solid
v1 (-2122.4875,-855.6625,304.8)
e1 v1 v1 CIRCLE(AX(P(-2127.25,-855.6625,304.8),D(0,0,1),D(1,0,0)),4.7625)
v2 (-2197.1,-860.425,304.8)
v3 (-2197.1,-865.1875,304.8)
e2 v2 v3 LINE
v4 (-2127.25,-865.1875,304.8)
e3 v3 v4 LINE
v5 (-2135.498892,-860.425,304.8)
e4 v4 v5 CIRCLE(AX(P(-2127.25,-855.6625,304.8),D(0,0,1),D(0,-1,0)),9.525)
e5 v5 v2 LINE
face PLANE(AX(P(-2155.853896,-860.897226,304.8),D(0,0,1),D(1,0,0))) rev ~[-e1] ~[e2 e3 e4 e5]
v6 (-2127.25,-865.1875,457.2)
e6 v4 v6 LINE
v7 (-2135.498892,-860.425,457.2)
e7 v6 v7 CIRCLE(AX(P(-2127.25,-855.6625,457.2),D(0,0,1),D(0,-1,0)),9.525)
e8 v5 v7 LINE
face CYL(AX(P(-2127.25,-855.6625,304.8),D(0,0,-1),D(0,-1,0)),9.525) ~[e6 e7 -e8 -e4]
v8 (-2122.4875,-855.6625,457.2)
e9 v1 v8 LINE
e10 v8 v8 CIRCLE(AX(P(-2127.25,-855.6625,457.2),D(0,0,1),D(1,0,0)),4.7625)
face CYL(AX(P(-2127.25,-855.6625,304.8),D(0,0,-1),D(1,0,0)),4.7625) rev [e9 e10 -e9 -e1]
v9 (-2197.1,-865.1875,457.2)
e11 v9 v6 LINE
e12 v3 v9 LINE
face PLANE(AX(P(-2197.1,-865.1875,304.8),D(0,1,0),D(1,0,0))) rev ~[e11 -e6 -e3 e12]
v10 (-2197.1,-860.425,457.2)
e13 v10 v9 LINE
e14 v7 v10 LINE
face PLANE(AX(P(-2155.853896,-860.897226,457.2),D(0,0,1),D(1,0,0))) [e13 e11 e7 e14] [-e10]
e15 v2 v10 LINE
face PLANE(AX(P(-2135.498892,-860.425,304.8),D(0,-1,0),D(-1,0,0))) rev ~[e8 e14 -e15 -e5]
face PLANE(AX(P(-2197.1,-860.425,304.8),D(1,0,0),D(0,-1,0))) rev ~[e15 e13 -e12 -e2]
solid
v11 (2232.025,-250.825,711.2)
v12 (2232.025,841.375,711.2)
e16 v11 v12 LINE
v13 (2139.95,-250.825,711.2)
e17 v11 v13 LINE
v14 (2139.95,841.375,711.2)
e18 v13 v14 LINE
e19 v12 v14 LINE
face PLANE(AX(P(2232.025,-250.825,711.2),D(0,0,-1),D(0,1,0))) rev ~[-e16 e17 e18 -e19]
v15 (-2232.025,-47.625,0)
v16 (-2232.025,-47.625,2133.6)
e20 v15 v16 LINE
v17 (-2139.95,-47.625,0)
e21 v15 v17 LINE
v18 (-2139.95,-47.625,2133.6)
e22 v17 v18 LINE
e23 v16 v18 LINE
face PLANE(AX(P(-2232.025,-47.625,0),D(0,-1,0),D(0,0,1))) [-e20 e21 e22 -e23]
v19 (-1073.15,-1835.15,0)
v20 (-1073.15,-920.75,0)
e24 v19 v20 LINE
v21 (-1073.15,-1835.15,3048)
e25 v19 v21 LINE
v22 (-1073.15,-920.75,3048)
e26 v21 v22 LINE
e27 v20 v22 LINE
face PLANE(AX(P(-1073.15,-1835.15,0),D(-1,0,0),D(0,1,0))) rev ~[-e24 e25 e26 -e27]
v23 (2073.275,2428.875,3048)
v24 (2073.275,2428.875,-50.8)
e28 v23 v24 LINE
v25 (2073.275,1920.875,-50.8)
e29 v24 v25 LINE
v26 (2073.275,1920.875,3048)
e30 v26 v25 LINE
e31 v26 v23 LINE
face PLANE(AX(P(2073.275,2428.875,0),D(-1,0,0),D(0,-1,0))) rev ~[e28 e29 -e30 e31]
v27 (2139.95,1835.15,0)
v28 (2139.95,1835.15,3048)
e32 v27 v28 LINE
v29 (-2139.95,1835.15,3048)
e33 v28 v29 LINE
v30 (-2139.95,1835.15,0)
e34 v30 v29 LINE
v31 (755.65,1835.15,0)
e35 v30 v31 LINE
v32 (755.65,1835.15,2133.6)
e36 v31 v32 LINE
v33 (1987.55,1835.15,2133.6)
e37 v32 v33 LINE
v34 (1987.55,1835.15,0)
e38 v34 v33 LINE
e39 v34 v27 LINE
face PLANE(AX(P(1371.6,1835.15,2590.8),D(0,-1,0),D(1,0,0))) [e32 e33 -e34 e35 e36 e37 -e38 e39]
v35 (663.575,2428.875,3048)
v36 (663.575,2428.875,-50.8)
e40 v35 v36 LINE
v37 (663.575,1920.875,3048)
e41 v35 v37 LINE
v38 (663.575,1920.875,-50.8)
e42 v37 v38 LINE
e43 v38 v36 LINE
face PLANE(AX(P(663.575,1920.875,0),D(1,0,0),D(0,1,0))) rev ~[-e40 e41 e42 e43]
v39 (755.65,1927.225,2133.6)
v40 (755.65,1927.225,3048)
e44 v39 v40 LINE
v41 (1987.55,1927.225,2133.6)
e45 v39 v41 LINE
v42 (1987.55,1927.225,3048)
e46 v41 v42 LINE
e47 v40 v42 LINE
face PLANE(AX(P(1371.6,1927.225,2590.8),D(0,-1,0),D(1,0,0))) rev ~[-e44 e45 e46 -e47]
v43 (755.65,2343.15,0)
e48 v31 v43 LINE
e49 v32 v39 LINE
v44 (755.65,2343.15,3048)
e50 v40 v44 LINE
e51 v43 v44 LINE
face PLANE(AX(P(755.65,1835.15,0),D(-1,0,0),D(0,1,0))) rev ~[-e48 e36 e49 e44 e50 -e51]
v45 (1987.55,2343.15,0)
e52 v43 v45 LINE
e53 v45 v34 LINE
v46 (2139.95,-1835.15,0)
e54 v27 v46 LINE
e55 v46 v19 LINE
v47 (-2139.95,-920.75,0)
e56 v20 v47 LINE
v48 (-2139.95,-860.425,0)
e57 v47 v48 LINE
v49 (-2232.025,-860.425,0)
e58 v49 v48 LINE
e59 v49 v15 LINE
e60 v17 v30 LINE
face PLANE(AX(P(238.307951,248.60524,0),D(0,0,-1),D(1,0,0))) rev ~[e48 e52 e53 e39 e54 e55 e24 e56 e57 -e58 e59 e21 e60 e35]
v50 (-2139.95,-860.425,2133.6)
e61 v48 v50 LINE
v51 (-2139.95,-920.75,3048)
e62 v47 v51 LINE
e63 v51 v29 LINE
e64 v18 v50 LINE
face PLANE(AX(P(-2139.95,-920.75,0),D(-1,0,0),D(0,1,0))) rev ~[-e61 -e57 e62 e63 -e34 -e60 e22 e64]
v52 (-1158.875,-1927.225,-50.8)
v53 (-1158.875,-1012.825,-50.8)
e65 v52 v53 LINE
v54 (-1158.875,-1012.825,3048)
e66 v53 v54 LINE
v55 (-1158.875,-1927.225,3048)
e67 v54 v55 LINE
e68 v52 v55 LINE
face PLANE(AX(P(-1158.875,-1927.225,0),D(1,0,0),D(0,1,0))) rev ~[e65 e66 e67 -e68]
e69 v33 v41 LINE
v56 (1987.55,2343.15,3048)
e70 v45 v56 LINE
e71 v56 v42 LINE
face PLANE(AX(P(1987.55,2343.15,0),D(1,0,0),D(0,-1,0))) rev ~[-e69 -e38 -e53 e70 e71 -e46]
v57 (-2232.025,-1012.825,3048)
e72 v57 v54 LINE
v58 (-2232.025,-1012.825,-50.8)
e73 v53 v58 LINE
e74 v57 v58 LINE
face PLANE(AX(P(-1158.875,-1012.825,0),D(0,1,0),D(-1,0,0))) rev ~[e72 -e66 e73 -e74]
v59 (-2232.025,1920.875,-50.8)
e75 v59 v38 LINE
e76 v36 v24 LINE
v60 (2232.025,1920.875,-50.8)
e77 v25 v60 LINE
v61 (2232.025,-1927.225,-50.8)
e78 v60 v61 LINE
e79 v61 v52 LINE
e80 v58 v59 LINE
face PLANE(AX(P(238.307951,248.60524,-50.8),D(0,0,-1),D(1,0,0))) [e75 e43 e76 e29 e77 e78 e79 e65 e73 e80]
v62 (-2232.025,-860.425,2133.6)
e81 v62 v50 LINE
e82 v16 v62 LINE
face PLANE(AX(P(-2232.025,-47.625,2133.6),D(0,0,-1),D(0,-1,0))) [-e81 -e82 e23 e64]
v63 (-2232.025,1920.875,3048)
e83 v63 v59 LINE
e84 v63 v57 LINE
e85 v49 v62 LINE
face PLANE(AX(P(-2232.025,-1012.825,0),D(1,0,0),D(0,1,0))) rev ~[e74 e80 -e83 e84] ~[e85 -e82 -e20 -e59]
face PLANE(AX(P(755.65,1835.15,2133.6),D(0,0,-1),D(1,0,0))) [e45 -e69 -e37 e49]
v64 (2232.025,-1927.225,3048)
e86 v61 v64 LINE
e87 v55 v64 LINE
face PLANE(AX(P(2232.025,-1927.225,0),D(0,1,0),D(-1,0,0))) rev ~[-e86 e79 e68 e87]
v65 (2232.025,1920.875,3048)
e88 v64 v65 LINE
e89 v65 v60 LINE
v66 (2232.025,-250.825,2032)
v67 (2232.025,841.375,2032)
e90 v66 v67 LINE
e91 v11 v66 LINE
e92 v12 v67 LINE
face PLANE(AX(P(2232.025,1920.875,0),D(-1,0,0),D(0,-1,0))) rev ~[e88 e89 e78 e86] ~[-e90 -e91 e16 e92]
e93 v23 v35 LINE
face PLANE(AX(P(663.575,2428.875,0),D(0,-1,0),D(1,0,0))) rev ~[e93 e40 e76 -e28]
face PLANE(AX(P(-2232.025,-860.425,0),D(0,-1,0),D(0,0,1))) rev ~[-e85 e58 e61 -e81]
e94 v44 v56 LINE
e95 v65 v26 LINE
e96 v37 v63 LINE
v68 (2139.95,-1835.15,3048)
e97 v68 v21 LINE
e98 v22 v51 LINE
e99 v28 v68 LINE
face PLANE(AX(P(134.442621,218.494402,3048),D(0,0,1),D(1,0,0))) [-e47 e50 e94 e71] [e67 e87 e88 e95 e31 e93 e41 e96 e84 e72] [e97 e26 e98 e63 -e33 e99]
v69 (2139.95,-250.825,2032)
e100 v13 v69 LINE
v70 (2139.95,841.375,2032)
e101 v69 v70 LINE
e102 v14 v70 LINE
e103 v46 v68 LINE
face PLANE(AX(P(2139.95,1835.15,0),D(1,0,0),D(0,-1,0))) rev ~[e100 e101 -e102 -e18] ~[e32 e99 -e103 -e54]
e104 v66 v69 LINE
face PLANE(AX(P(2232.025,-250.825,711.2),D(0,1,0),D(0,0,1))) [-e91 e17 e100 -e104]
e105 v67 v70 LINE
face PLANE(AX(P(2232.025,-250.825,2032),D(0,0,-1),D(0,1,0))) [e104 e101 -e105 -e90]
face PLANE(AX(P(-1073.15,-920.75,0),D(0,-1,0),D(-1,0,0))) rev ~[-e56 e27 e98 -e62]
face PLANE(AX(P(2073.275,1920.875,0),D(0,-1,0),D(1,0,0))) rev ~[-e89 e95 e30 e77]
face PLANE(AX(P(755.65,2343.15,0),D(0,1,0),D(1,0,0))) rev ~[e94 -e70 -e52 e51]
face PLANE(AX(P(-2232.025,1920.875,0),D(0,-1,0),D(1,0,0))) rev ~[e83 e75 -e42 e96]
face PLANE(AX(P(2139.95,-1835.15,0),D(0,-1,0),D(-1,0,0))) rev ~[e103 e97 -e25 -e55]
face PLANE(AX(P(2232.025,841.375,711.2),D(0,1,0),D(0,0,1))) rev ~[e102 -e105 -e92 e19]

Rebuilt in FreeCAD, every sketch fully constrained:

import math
import FreeCAD as App
import Part
import Sketcher
Q = App.Units.Quantity

doc = App.newDocument("Part")
params = doc.addObject("Spreadsheet::Sheet", "Params")
for row, (alias, value) in enumerate([
    ("sketch1_width", "114 in"),
    ("sketch1_width2", "6 in"),
    ("sketch1_width3", "42 in"),
    ("sketch1_height", "20 in"),
    ("sketch1_height2", "36 in"),
    ("pad1_length", "120 in"),
    ("sketch2_width", "43 in"),
    ("sketch2_height", "52 in"),
    ("pocket1_length", "4 in"),
    ("sketch3_width", "32 in"),
    ("sketch3_height", "84 in"),
    ("pocket2_length", "4 in"),
    ("sketch4_width", "114 in"),
    ("sketch4_height", "20 in"),
    ("sketch4_height2", "36 in"),
    ("sketch4_width2", "55.5 in"),
    ("sketch4_width3", "133.5 in"),
    ("pad2_length", "2 in"),
    ("sketch5_height", "36 in"),
    ("sketch5_width", "48.5 in"),
    ("pad3_length", "3.625 in"),
    ("sketch6_diameter", "0.375 in"),
    ("sketch6_radius", "0.375 in"),
    ("sketch6_width", "2.75 in"),
    ("sketch6_height", "0.1875 in"),
    ("pad4_length", "6 in"),
], start=1):
    params.set(f"A{row}", alias)
    params.set(f"B{row}", "=" + value)
    params.setAlias(f"B{row}", alias)

body = doc.addObject("PartDesign::Body", "Body")

# Sketch on XY plane
sketch1 = body.newObject("Sketcher::SketchObject", "Sketch")
sketch1.AttachmentSupport = (doc.getObject("XY_Plane"), [""])
sketch1.MapMode = "FlatFace"
sketch1.addGeometry([
    Part.LineSegment(App.Vector(663.575, 2428.875, 0), App.Vector(663.575, 1920.875, 0)),  # 0
    Part.LineSegment(App.Vector(663.575, 1920.875, 0), App.Vector(-2232.025, 1920.875, 0)),  # 1
    Part.LineSegment(App.Vector(-2232.025, 1920.875, 0), App.Vector(-2232.025, -1012.825, 0)),  # 2
    Part.LineSegment(App.Vector(-2232.025, -1012.825, 0), App.Vector(-1158.875, -1012.825, 0)),  # 3
    Part.LineSegment(App.Vector(-1158.875, -1012.825, 0), App.Vector(-1158.875, -1927.225, 0)),  # 4
    Part.LineSegment(App.Vector(-1158.875, -1927.225, 0), App.Vector(2232.025, -1927.225, 0)),  # 5
    Part.LineSegment(App.Vector(2232.025, -1927.225, 0), App.Vector(2232.025, 1920.875, 0)),  # 6
    Part.LineSegment(App.Vector(2232.025, 1920.875, 0), App.Vector(2073.275, 1920.875, 0)),  # 7
    Part.LineSegment(App.Vector(2073.275, 1920.875, 0), App.Vector(2073.275, 2428.875, 0)),  # 8
    Part.LineSegment(App.Vector(2073.275, 2428.875, 0), App.Vector(663.575, 2428.875, 0)),  # 9
    Part.LineSegment(App.Vector(-2139.95, -920.75, 0), App.Vector(-2139.95, 1835.15, 0)),  # 10
    Part.LineSegment(App.Vector(-2139.95, 1835.15, 0), App.Vector(755.65, 1835.15, 0)),  # 11
    Part.LineSegment(App.Vector(755.65, 1835.15, 0), App.Vector(755.65, 2343.15, 0)),  # 12
    Part.LineSegment(App.Vector(755.65, 2343.15, 0), App.Vector(1987.55, 2343.15, 0)),  # 13
    Part.LineSegment(App.Vector(1987.55, 2343.15, 0), App.Vector(1987.55, 1835.15, 0)),  # 14
    Part.LineSegment(App.Vector(1987.55, 1835.15, 0), App.Vector(2139.95, 1835.15, 0)),  # 15
    Part.LineSegment(App.Vector(2139.95, 1835.15, 0), App.Vector(2139.95, -1835.15, 0)),  # 16
    Part.LineSegment(App.Vector(2139.95, -1835.15, 0), App.Vector(-1073.15, -1835.15, 0)),  # 17
    Part.LineSegment(App.Vector(-1073.15, -1835.15, 0), App.Vector(-1073.15, -920.75, 0)),  # 18
    Part.LineSegment(App.Vector(-1073.15, -920.75, 0), App.Vector(-2139.95, -920.75, 0)),  # 19
], False)
sketch1.addConstraint([
    Sketcher.Constraint("Coincident", 0, 2, 1, 1),
    Sketcher.Constraint("Coincident", 1, 2, 2, 1),
    Sketcher.Constraint("Coincident", 2, 2, 3, 1),
    Sketcher.Constraint("Coincident", 3, 2, 4, 1),
    Sketcher.Constraint("Coincident", 4, 2, 5, 1),
    Sketcher.Constraint("Coincident", 5, 2, 6, 1),
    Sketcher.Constraint("Coincident", 6, 2, 7, 1),
    Sketcher.Constraint("Coincident", 7, 2, 8, 1),
    Sketcher.Constraint("Coincident", 8, 2, 9, 1),
    Sketcher.Constraint("Coincident", 9, 2, 0, 1),
    Sketcher.Constraint("Coincident", 10, 2, 11, 1),
    Sketcher.Constraint("Coincident", 11, 2, 12, 1),
    Sketcher.Constraint("Coincident", 12, 2, 13, 1),
    Sketcher.Constraint("Coincident", 13, 2, 14, 1),
    Sketcher.Constraint("Coincident", 14, 2, 15, 1),
    Sketcher.Constraint("Coincident", 15, 2, 16, 1),
    Sketcher.Constraint("Coincident", 16, 2, 17, 1),
    Sketcher.Constraint("Coincident", 17, 2, 18, 1),
    Sketcher.Constraint("Coincident", 18, 2, 19, 1),
    Sketcher.Constraint("Coincident", 19, 2, 10, 1),
    Sketcher.Constraint("Vertical", 0),
    Sketcher.Constraint("Horizontal", 1),
    Sketcher.Constraint("Vertical", 2),
    Sketcher.Constraint("Horizontal", 3),
    Sketcher.Constraint("Vertical", 4),
    Sketcher.Constraint("Horizontal", 5),
    Sketcher.Constraint("Vertical", 6),
    Sketcher.Constraint("Horizontal", 7),
    Sketcher.Constraint("Vertical", 8),
    Sketcher.Constraint("Horizontal", 9),
    Sketcher.Constraint("Vertical", 10),
    Sketcher.Constraint("Horizontal", 11),
    Sketcher.Constraint("Vertical", 12),
    Sketcher.Constraint("Horizontal", 13),
    Sketcher.Constraint("Vertical", 14),
    Sketcher.Constraint("Horizontal", 15),
    Sketcher.Constraint("Vertical", 16),
    Sketcher.Constraint("Horizontal", 17),
    Sketcher.Constraint("Vertical", 18),
    Sketcher.Constraint("Horizontal", 19),
    Sketcher.Constraint("Symmetric", 10, 2, 16, 2, -1, 1),
    Sketcher.Constraint("Symmetric", 1, 2, 6, 2, -2),
    Sketcher.Constraint("Horizontal", 11, 2, 14, 2),
    Sketcher.Constraint("Equal", 1, 11),
    Sketcher.Constraint("Equal", 8, 12),
    Sketcher.Constraint("Equal", 4, 18),
    Sketcher.Constraint("DistanceX", 1, 2, 1, 1, Q("114 in")),
    Sketcher.Constraint("DistanceX", 15, 1, 15, 2, Q("6 in")),
    Sketcher.Constraint("DistanceX", 19, 2, 19, 1, Q("42 in")),
    Sketcher.Constraint("DistanceY", 0, 2, 0, 1, Q("20 in")),
    Sketcher.Constraint("DistanceY", 4, 2, 4, 1, Q("36 in")),
    Sketcher.Constraint("DistanceX", 5, 1, 5, 2, Q("133.5 in")),
    Sketcher.Constraint("DistanceX", 9, 2, 9, 1, Q("55.5 in")),
    Sketcher.Constraint("DistanceX", 13, 1, 13, 2, Q("48.5 in")),
    Sketcher.Constraint("DistanceY", 2, 2, 2, 1, Q("115.5 in")),
    Sketcher.Constraint("DistanceY", 10, 1, 10, 2, Q("108.5 in")),
    Sketcher.Constraint("DistanceX", 3, 1, 3, 2, Q("42.25 in")),
    Sketcher.Constraint("DistanceY", -1, 1, 0, 2, Q("75.625 in")),
])
sketch1.setExpression("Constraints[46]", "Params.sketch1_width")
sketch1.setExpression("Constraints[47]", "Params.sketch1_width2")
sketch1.setExpression("Constraints[48]", "Params.sketch1_width3")
sketch1.setExpression("Constraints[49]", "Params.sketch1_height")
sketch1.setExpression("Constraints[50]", "Params.sketch1_height2")
pad1 = body.newObject("PartDesign::Pad", "Pad")
pad1.Profile = sketch1
pad1.setExpression("Length", "Params.pad1_length")

# Sketch on YZ plane
sketch2 = body.newObject("Sketcher::SketchObject", "Sketch001")
sketch2.AttachmentSupport = (doc.getObject("YZ_Plane"), [""])
sketch2.MapMode = "FlatFace"
sketch2.AttachmentOffset = App.Placement(App.Vector(0, 0, 87.875 * 25.4), App.Rotation())
sketch2.addGeometry([
    Part.LineSegment(App.Vector(-250.825, 2032, 0), App.Vector(-250.825, 711.2, 0)),
    Part.LineSegment(App.Vector(-250.825, 711.2, 0), App.Vector(841.375, 711.2, 0)),
    Part.LineSegment(App.Vector(841.375, 711.2, 0), App.Vector(841.375, 2032, 0)),
    Part.LineSegment(App.Vector(841.375, 2032, 0), App.Vector(-250.825, 2032, 0)),
], False)
sketch2.addConstraint([
    Sketcher.Constraint("Coincident", 0, 2, 1, 1),
    Sketcher.Constraint("Coincident", 1, 2, 2, 1),
    Sketcher.Constraint("Coincident", 2, 2, 3, 1),
    Sketcher.Constraint("Coincident", 3, 2, 0, 1),
    Sketcher.Constraint("Vertical", 0),
    Sketcher.Constraint("Horizontal", 1),
    Sketcher.Constraint("Vertical", 2),
    Sketcher.Constraint("Horizontal", 3),
    Sketcher.Constraint("DistanceX", 1, 1, 1, 2, Q("43 in")),
    Sketcher.Constraint("DistanceY", 0, 2, 0, 1, Q("52 in")),
    Sketcher.Constraint("DistanceY", -1, 1, 0, 2, Q("28 in")),
    Sketcher.Constraint("DistanceX", 0, 2, -1, 1, Q("9.875 in")),
])
sketch2.setExpression("Constraints[8]", "Params.sketch2_width")
sketch2.setExpression("Constraints[9]", "Params.sketch2_height")
pocket1 = body.newObject("PartDesign::Pocket", "Pocket")
pocket1.Profile = sketch2
pocket1.setExpression("Length", "Params.pocket1_length")

# Sketch on YZ plane
sketch3 = body.newObject("Sketcher::SketchObject", "Sketch002")
sketch3.AttachmentSupport = (doc.getObject("YZ_Plane"), [""])
sketch3.MapMode = "FlatFace"
sketch3.AttachmentOffset = App.Placement(App.Vector(0, 0, -87.875 * 25.4), App.Rotation())
sketch3.addGeometry([
    Part.LineSegment(App.Vector(-47.625, 2133.6, 0), App.Vector(-47.625, 0, 0)),
    Part.LineSegment(App.Vector(-47.625, 0, 0), App.Vector(-860.425, 0, 0)),
    Part.LineSegment(App.Vector(-860.425, 0, 0), App.Vector(-860.425, 2133.6, 0)),
    Part.LineSegment(App.Vector(-860.425, 2133.6, 0), App.Vector(-47.625, 2133.6, 0)),
], False)
sketch3.addConstraint([
    Sketcher.Constraint("Coincident", 0, 2, 1, 1),
    Sketcher.Constraint("Coincident", 1, 2, 2, 1),
    Sketcher.Constraint("Coincident", 2, 2, 3, 1),
    Sketcher.Constraint("Coincident", 3, 2, 0, 1),
    Sketcher.Constraint("Vertical", 0),
    Sketcher.Constraint("Horizontal", 1),
    Sketcher.Constraint("Vertical", 2),
    Sketcher.Constraint("Horizontal", 3),
    Sketcher.Constraint("PointOnObject", 0, 2, -1),
    Sketcher.Constraint("DistanceX", 1, 2, 1, 1, Q("32 in")),
    Sketcher.Constraint("DistanceY", 0, 2, 0, 1, Q("84 in")),
    Sketcher.Constraint("DistanceX", 0, 2, -1, 1, Q("1.875 in")),
])
sketch3.setExpression("Constraints[9]", "Params.sketch3_width")
sketch3.setExpression("Constraints[10]", "Params.sketch3_height")
pocket2 = body.newObject("PartDesign::Pocket", "Pocket001")
pocket2.Profile = sketch3
pocket2.setExpression("Length", "Params.pocket2_length")
pocket2.Reversed = True

# Sketch on XY plane
sketch4 = body.newObject("Sketcher::SketchObject", "Sketch003")
sketch4.AttachmentSupport = (doc.getObject("XY_Plane"), [""])
sketch4.MapMode = "FlatFace"
sketch4.addGeometry([
    Part.LineSegment(App.Vector(-1158.875, -1012.825, 0), App.Vector(-2232.025, -1012.825, 0)),  # 0
    Part.LineSegment(App.Vector(-2232.025, -1012.825, 0), App.Vector(-2232.025, 1920.875, 0)),  # 1
    Part.LineSegment(App.Vector(-2232.025, 1920.875, 0), App.Vector(663.575, 1920.875, 0)),  # 2
    Part.LineSegment(App.Vector(663.575, 1920.875, 0), App.Vector(663.575, 2428.875, 0)),  # 3
    Part.LineSegment(App.Vector(663.575, 2428.875, 0), App.Vector(2073.275, 2428.875, 0)),  # 4
    Part.LineSegment(App.Vector(2073.275, 2428.875, 0), App.Vector(2073.275, 1920.875, 0)),  # 5
    Part.LineSegment(App.Vector(2073.275, 1920.875, 0), App.Vector(2232.025, 1920.875, 0)),  # 6
    Part.LineSegment(App.Vector(2232.025, 1920.875, 0), App.Vector(2232.025, -1927.225, 0)),  # 7
    Part.LineSegment(App.Vector(2232.025, -1927.225, 0), App.Vector(-1158.875, -1927.225, 0)),  # 8
    Part.LineSegment(App.Vector(-1158.875, -1927.225, 0), App.Vector(-1158.875, -1012.825, 0)),  # 9
], False)
sketch4.addConstraint([
    Sketcher.Constraint("Coincident", 0, 2, 1, 1),
    Sketcher.Constraint("Coincident", 1, 2, 2, 1),
    Sketcher.Constraint("Coincident", 2, 2, 3, 1),
    Sketcher.Constraint("Coincident", 3, 2, 4, 1),
    Sketcher.Constraint("Coincident", 4, 2, 5, 1),
    Sketcher.Constraint("Coincident", 5, 2, 6, 1),
    Sketcher.Constraint("Coincident", 6, 2, 7, 1),
    Sketcher.Constraint("Coincident", 7, 2, 8, 1),
    Sketcher.Constraint("Coincident", 8, 2, 9, 1),
    Sketcher.Constraint("Coincident", 9, 2, 0, 1),
    Sketcher.Constraint("Horizontal", 0),
    Sketcher.Constraint("Vertical", 1),
    Sketcher.Constraint("Horizontal", 2),
    Sketcher.Constraint("Vertical", 3),
    Sketcher.Constraint("Horizontal", 4),
    Sketcher.Constraint("Vertical", 5),
    Sketcher.Constraint("Horizontal", 6),
    Sketcher.Constraint("Vertical", 7),
    Sketcher.Constraint("Horizontal", 8),
    Sketcher.Constraint("Vertical", 9),
    Sketcher.Constraint("Symmetric", 1, 2, 6, 2, -2),
    Sketcher.Constraint("DistanceX", 2, 1, 2, 2, Q("114 in")),
    Sketcher.Constraint("DistanceY", 3, 1, 3, 2, Q("20 in")),
    Sketcher.Constraint("DistanceY", 9, 1, 9, 2, Q("36 in")),
    Sketcher.Constraint("DistanceX", 4, 1, 4, 2, Q("55.5 in")),
    Sketcher.Constraint("DistanceX", 8, 2, 8, 1, Q("133.5 in")),
    Sketcher.Constraint("DistanceY", 1, 1, 1, 2, Q("115.5 in")),
    Sketcher.Constraint("DistanceX", 0, 2, 0, 1, Q("42.25 in")),
    Sketcher.Constraint("DistanceY", 0, 2, -1, 1, Q("39.875 in")),
])
sketch4.setExpression("Constraints[21]", "Params.sketch4_width")
sketch4.setExpression("Constraints[22]", "Params.sketch4_height")
sketch4.setExpression("Constraints[23]", "Params.sketch4_height2")
sketch4.setExpression("Constraints[24]", "Params.sketch4_width2")
sketch4.setExpression("Constraints[25]", "Params.sketch4_width3")
pad2 = body.newObject("PartDesign::Pad", "Pad001")
pad2.Profile = sketch4
pad2.setExpression("Length", "Params.pad2_length")
pad2.Reversed = True

# Sketch on XZ plane
sketch5 = body.newObject("Sketcher::SketchObject", "Sketch004")
sketch5.AttachmentSupport = (doc.getObject("XZ_Plane"), [""])
sketch5.MapMode = "FlatFace"
sketch5.AttachmentOffset = App.Placement(App.Vector(0, 0, -72.25 * 25.4), App.Rotation())
sketch5.addGeometry([
    Part.LineSegment(App.Vector(755.65, 3048, 0), App.Vector(755.65, 2133.6, 0)),
    Part.LineSegment(App.Vector(755.65, 2133.6, 0), App.Vector(1987.55, 2133.6, 0)),
    Part.LineSegment(App.Vector(1987.55, 2133.6, 0), App.Vector(1987.55, 3048, 0)),
    Part.LineSegment(App.Vector(1987.55, 3048, 0), App.Vector(755.65, 3048, 0)),
], False)
sketch5.addConstraint([
    Sketcher.Constraint("Coincident", 0, 2, 1, 1),
    Sketcher.Constraint("Coincident", 1, 2, 2, 1),
    Sketcher.Constraint("Coincident", 2, 2, 3, 1),
    Sketcher.Constraint("Coincident", 3, 2, 0, 1),
    Sketcher.Constraint("Vertical", 0),
    Sketcher.Constraint("Horizontal", 1),
    Sketcher.Constraint("Vertical", 2),
    Sketcher.Constraint("Horizontal", 3),
    Sketcher.Constraint("DistanceY", 0, 2, 0, 1, Q("36 in")),
    Sketcher.Constraint("DistanceX", 1, 1, 1, 2, Q("48.5 in")),
    Sketcher.Constraint("DistanceY", -1, 1, 0, 2, Q("84 in")),
    Sketcher.Constraint("DistanceX", -1, 1, 0, 2, Q("29.75 in")),
])
sketch5.setExpression("Constraints[8]", "Params.sketch5_height")
sketch5.setExpression("Constraints[9]", "Params.sketch5_width")
pad3 = body.newObject("PartDesign::Pad", "Pad002")
pad3.Profile = sketch5
pad3.setExpression("Length", "Params.pad3_length")
pad3.Reversed = True
body2 = doc.addObject("PartDesign::Body", "Body001")

# Sketch on XY plane
sketch6 = body2.newObject("Sketcher::SketchObject", "Sketch005")
sketch6.AttachmentSupport = (doc.getObject("XY_Plane001"), [""])
sketch6.MapMode = "FlatFace"
sketch6.AttachmentOffset = App.Placement(App.Vector(0, 0, 12 * 25.4), App.Rotation())
sketch6.addGeometry([
    Part.LineSegment(App.Vector(-2197.1, -860.425, 0), App.Vector(-2197.1, -865.1875, 0)),  # 0
    Part.LineSegment(App.Vector(-2197.1, -865.1875, 0), App.Vector(-2127.25, -865.1875, 0)),  # 1
    Part.ArcOfCircle(Part.Circle(App.Vector(-2127.25, -855.6625, 0), App.Vector(0, 0, 1), 9.525), math.radians(-90), math.radians(210)),  # 2
    Part.LineSegment(App.Vector(-2135.498892, -860.425, 0), App.Vector(-2197.1, -860.425, 0)),  # 3
    Part.Circle(App.Vector(-2127.25, -855.6625, 0), App.Vector(0, 0, 1), 4.7625),  # 4
], False)
sketch6.addConstraint([
    Sketcher.Constraint("Coincident", 0, 2, 1, 1),
    Sketcher.Constraint("Tangent", 1, 2, 2, 1),
    Sketcher.Constraint("Coincident", 2, 2, 3, 1),
    Sketcher.Constraint("Coincident", 3, 2, 0, 1),
    Sketcher.Constraint("Vertical", 0),
    Sketcher.Constraint("Horizontal", 1),
    Sketcher.Constraint("Horizontal", 3),
    Sketcher.Constraint("Coincident", 4, 3, 2, 3),
    Sketcher.Constraint("Diameter", 4, Q("0.375 in")),
    Sketcher.Constraint("Radius", 2, Q("0.375 in")),
    Sketcher.Constraint("DistanceX", 1, 1, 1, 2, Q("2.75 in")),
    Sketcher.Constraint("DistanceX", 0, 2, -1, 1, Q("86.5 in")),
    Sketcher.Constraint("DistanceY", 0, 2, 0, 1, Q("0.1875 in")),
    Sketcher.Constraint("DistanceY", 2, 3, -1, 1, Q("33.6875 in")),
])
sketch6.setExpression("Constraints[8]", "Params.sketch6_diameter")
sketch6.setExpression("Constraints[9]", "Params.sketch6_radius")
sketch6.setExpression("Constraints[10]", "Params.sketch6_width")
sketch6.setExpression("Constraints[12]", "Params.sketch6_height")
pad4 = body2.newObject("PartDesign::Pad", "Pad003")
pad4.Profile = sketch6
pad4.setExpression("Length", "Params.pad4_length")

doc.recompute()
